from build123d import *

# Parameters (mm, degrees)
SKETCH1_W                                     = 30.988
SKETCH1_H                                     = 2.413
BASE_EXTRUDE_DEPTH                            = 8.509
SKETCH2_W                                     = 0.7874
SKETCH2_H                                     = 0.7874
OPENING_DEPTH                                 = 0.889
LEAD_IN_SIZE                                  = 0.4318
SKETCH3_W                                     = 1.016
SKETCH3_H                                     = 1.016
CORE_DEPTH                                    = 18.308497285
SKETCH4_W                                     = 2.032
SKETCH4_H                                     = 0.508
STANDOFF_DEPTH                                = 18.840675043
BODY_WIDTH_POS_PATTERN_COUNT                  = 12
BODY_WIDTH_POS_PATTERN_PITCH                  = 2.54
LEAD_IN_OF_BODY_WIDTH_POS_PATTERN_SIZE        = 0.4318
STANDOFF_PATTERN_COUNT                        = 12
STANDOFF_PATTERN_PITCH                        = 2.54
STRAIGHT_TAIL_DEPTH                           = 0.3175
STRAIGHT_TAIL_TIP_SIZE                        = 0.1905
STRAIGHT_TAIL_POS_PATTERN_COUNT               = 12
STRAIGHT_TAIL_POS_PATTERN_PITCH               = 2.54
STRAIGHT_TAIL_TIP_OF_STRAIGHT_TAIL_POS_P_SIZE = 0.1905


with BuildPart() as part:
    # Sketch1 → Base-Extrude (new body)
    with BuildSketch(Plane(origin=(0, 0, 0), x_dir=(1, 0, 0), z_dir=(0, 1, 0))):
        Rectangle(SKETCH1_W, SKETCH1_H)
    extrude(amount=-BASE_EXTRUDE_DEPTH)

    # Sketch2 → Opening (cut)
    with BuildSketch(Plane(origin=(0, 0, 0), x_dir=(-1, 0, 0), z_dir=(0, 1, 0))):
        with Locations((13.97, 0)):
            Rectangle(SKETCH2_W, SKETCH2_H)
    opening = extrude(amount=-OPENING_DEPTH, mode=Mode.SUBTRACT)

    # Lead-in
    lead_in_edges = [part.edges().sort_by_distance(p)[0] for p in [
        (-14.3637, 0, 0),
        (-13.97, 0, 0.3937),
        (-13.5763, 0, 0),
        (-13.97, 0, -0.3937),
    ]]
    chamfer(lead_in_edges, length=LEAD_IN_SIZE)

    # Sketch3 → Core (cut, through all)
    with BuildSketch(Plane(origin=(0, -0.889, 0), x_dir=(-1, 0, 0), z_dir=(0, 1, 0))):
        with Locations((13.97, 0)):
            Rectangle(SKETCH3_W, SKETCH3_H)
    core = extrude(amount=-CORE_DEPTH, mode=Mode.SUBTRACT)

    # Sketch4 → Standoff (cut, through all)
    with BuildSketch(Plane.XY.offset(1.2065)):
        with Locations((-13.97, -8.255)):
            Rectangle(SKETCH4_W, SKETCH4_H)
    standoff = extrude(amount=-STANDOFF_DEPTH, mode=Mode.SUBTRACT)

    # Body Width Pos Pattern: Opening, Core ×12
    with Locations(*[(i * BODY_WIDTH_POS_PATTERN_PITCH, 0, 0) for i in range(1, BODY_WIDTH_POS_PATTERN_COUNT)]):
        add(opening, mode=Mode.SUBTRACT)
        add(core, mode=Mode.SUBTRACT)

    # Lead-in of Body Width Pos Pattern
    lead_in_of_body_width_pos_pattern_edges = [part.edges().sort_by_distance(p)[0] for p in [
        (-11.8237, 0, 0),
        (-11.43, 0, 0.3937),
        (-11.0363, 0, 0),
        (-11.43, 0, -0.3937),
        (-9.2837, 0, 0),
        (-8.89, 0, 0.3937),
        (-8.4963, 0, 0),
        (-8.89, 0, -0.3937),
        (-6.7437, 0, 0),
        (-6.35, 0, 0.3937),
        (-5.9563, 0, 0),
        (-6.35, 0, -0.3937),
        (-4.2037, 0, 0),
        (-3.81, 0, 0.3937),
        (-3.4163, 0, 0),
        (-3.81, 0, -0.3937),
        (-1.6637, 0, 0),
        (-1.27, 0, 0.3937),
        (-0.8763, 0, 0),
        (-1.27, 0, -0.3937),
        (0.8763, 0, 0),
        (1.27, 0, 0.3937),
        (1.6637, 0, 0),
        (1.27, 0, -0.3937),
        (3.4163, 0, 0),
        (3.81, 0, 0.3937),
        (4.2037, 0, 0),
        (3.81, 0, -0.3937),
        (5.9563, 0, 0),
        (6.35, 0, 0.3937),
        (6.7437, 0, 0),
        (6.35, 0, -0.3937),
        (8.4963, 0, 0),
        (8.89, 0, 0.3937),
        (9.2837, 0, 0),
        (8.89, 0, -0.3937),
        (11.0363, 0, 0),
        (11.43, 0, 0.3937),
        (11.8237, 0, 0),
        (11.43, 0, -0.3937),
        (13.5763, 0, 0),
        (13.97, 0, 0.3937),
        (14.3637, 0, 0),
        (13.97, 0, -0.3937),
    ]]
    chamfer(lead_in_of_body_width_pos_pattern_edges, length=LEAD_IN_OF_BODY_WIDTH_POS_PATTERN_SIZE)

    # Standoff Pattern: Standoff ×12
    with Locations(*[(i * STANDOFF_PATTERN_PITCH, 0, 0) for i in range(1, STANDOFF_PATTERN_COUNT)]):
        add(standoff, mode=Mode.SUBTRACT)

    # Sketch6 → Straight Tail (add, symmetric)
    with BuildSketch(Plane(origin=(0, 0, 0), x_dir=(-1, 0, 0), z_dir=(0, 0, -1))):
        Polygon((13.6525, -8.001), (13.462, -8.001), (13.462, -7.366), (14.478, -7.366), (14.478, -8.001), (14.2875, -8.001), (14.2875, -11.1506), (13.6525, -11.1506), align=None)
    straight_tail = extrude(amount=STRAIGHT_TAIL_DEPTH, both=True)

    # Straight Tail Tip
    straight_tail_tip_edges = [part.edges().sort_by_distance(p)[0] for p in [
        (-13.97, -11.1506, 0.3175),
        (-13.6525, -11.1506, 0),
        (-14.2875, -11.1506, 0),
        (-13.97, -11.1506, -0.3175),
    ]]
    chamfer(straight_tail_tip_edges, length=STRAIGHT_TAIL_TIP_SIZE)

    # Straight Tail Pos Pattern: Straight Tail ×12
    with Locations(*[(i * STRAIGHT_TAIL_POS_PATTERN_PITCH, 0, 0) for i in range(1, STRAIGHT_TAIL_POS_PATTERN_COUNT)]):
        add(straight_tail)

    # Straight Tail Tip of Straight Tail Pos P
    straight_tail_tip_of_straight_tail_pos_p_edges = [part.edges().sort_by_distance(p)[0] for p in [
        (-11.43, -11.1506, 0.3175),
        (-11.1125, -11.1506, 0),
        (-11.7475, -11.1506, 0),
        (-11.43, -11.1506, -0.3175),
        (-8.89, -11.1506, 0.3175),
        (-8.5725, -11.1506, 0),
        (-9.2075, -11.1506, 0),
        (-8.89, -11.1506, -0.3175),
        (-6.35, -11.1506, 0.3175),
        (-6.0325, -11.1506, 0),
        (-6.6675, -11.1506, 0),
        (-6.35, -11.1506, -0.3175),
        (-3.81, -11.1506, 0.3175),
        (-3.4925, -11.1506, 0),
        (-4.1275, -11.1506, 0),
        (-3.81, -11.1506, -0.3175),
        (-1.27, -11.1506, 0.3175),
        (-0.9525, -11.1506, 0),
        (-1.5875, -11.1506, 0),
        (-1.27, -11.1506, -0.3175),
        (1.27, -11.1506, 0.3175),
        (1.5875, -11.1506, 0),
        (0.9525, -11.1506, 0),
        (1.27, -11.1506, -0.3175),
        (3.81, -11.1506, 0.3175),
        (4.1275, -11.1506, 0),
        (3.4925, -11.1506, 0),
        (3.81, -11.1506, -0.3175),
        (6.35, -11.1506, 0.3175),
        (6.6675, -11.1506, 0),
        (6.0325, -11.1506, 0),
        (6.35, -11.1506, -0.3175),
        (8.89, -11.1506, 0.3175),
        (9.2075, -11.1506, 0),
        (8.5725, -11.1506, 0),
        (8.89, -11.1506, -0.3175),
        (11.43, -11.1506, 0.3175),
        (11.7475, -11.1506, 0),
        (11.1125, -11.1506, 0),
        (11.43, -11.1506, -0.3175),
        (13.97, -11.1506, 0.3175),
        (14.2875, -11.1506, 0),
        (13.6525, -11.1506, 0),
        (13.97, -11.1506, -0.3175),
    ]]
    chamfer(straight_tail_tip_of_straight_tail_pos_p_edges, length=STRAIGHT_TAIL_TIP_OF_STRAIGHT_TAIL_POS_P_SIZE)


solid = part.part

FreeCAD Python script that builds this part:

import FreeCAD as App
import Part
import Sketcher

V = App.Vector
Q = App.Units.Quantity


def edges_at(feature, points):
    """Names of the edges that pass closest to the given points."""
    edges = feature.Shape.Edges
    near = lambda p: min(range(len(edges)), key=lambda i: edges[i].distToShape(Part.Vertex(*p))[0])
    return sorted({f"Edge{near(p) + 1}" for p in points})

doc = App.newDocument("Part")
body = doc.addObject("PartDesign::Body", "Body")

# Sketch on XZ plane
sketch1 = doc.addObject("Sketcher::SketchObject", "Sketch")
body.addObject(sketch1)
sketch1.AttachmentSupport = (doc.XZ_Plane, [""])
sketch1.MapMode = "FlatFace"
sketch1.addGeometry(Part.LineSegment(V(-15.5, -1.2, 0), V(-15.5, 1.2, 0)), False)
sketch1.addGeometry(Part.LineSegment(V(-15.5, 1.2, 0), V(15.5, 1.2, 0)), False)
sketch1.addGeometry(Part.LineSegment(V(15.5, 1.2, 0), V(15.5, -1.2, 0)), False)
sketch1.addGeometry(Part.LineSegment(V(15.5, -1.2, 0), V(-15.5, -1.2, 0)), False)
sketch1.addConstraint(Sketcher.Constraint("Coincident", 0, 2, 1, 1))
sketch1.addConstraint(Sketcher.Constraint("Coincident", 1, 2, 2, 1))
sketch1.addConstraint(Sketcher.Constraint("Coincident", 2, 2, 3, 1))
sketch1.addConstraint(Sketcher.Constraint("Coincident", 3, 2, 0, 1))
sketch1.addConstraint(Sketcher.Constraint("Vertical", 0))
sketch1.addConstraint(Sketcher.Constraint("Horizontal", 1))
sketch1.addConstraint(Sketcher.Constraint("Vertical", 2))
sketch1.addConstraint(Sketcher.Constraint("Horizontal", 3))
sketch1.addConstraint(Sketcher.Constraint("Symmetric", 0, 2, 2, 2, -1, 1))
sketch1.addConstraint(Sketcher.Constraint("DistanceX", 1, 1, 1, 2, Q("1.22 in")))
sketch1.addConstraint(Sketcher.Constraint("DistanceY", 0, 1, 0, 2, Q("0.095 in")))
pad1 = doc.addObject("PartDesign::Pad", "Pad")
body.addObject(pad1)
pad1.Profile = sketch1
pad1.Length = Q("0.335 in")

# Sketch on XZ plane
sketch2 = doc.addObject("Sketcher::SketchObject", "Sketch001")
body.addObject(sketch2)
sketch2.AttachmentSupport = (doc.XZ_Plane, [""])
sketch2.MapMode = "FlatFace"
sketch2.addGeometry(Part.LineSegment(V(-13.6, 0.4, 0), V(-13.6, -0.4, 0)), False)
sketch2.addGeometry(Part.LineSegment(V(-13.6, -0.4, 0), V(-14.4, -0.4, 0)), False)
sketch2.addGeometry(Part.LineSegment(V(-14.4, -0.4, 0), V(-14.4, 0.4, 0)), False)
sketch2.addGeometry(Part.LineSegment(V(-14.4, 0.4, 0), V(-13.6, 0.4, 0)), False)
sketch2.addConstraint(Sketcher.Constraint("Coincident", 0, 2, 1, 1))
sketch2.addConstraint(Sketcher.Constraint("Coincident", 1, 2, 2, 1))
sketch2.addConstraint(Sketcher.Constraint("Coincident", 2, 2, 3, 1))
sketch2.addConstraint(Sketcher.Constraint("Coincident", 3, 2, 0, 1))
sketch2.addConstraint(Sketcher.Constraint("Vertical", 0))
sketch2.addConstraint(Sketcher.Constraint("Horizontal", 1))
sketch2.addConstraint(Sketcher.Constraint("Vertical", 2))
sketch2.addConstraint(Sketcher.Constraint("Horizontal", 3))
sketch2.addConstraint(Sketcher.Constraint("Equal", 3, 0))
sketch2.addConstraint(Sketcher.Constraint("DistanceX", 1, 2, 1, 1, Q("0.031 in")))
sketch2.addConstraint(Sketcher.Constraint("DistanceX", 0, 2, -1, 1, Q("0.5345 in")))
sketch2.addConstraint(Sketcher.Constraint("DistanceY", 0, 2, -1, 1, Q("0.0155 in")))
pocket1 = doc.addObject("PartDesign::Pocket", "Pocket")
body.addObject(pocket1)
pocket1.Profile = sketch2
pocket1.Length = Q("0.035 in")
pocket1.Reversed = True
doc.recompute()

chamfer = doc.addObject("PartDesign::Chamfer", "Chamfer")
body.addObject(chamfer)
chamfer.Base = (pocket1, edges_at(pocket1, [
    (-14.364, 0, 0),
    (-13.97, 0, 0.394),
    (-13.576, 0, 0),
    (-13.97, 0, -0.394),
]))
chamfer.Size = Q("0.017 in")

# Sketch on XZ plane
sketch3 = doc.addObject("Sketcher::SketchObject", "Sketch002")
body.addObject(sketch3)
sketch3.AttachmentSupport = (doc.XZ_Plane, [""])
sketch3.MapMode = "FlatFace"
sketch3.AttachmentOffset = App.Placement(V(0, 0, 0.035 * 25.4), App.Rotation())
sketch3.addGeometry(Part.LineSegment(V(-13.5, 0.5, 0), V(-13.5, -0.5, 0)), False)
sketch3.addGeometry(Part.LineSegment(V(-13.5, -0.5, 0), V(-14.5, -0.5, 0)), False)
sketch3.addGeometry(Part.LineSegment(V(-14.5, -0.5, 0), V(-14.5, 0.5, 0)), False)
sketch3.addGeometry(Part.LineSegment(V(-14.5, 0.5, 0), V(-13.5, 0.5, 0)), False)
sketch3.addConstraint(Sketcher.Constraint("Coincident", 0, 2, 1, 1))
sketch3.addConstraint(Sketcher.Constraint("Coincident", 1, 2, 2, 1))
sketch3.addConstraint(Sketcher.Constraint("Coincident", 2, 2, 3, 1))
sketch3.addConstraint(Sketcher.Constraint("Coincident", 3, 2, 0, 1))
sketch3.addConstraint(Sketcher.Constraint("Vertical", 0))
sketch3.addConstraint(Sketcher.Constraint("Horizontal", 1))
sketch3.addConstraint(Sketcher.Constraint("Vertical", 2))
sketch3.addConstraint(Sketcher.Constraint("Horizontal", 3))
sketch3.addConstraint(Sketcher.Constraint("Equal", 3, 0))
sketch3.addConstraint(Sketcher.Constraint("DistanceX", 1, 2, 1, 1, Q("0.04 in")))
sketch3.addConstraint(Sketcher.Constraint("DistanceX", 0, 2, -1, 1, Q("0.53 in")))
sketch3.addConstraint(Sketcher.Constraint("DistanceY", 0, 2, -1, 1, Q("0.02 in")))
pocket2 = doc.addObject("PartDesign::Pocket", "Pocket001")
body.addObject(pocket2)
pocket2.Profile = sketch3
pocket2.Type = "ThroughAll"
pocket2.Reversed = True

# Sketch on XY plane
sketch4 = doc.addObject("Sketcher::SketchObject", "Sketch003")
body.addObject(sketch4)
sketch4.AttachmentSupport = (doc.XY_Plane, [""])
sketch4.MapMode = "FlatFace"
sketch4.AttachmentOffset = App.Placement(V(0, 0, 0.0475 * 25.4), App.Rotation())
sketch4.addGeometry(Part.LineSegment(V(-15, -8, 0), V(-15, -8.5, 0)), False)
sketch4.addGeometry(Part.LineSegment(V(-15, -8.5, 0), V(-13, -8.5, 0)), False)
sketch4.addGeometry(Part.LineSegment(V(-13, -8.5, 0), V(-13, -8, 0)), False)
sketch4.addGeometry(Part.LineSegment(V(-13, -8, 0), V(-15, -8, 0)), False)
sketch4.addConstraint(Sketcher.Constraint("Coincident", 0, 2, 1, 1))
sketch4.addConstraint(Sketcher.Constraint("Coincident", 1, 2, 2, 1))
sketch4.addConstraint(Sketcher.Constraint("Coincident", 2, 2, 3, 1))
sketch4.addConstraint(Sketcher.Constraint("Coincident", 3, 2, 0, 1))
sketch4.addConstraint(Sketcher.Constraint("Vertical", 0))
sketch4.addConstraint(Sketcher.Constraint("Horizontal", 1))
sketch4.addConstraint(Sketcher.Constraint("Vertical", 2))
sketch4.addConstraint(Sketcher.Constraint("Horizontal", 3))
sketch4.addConstraint(Sketcher.Constraint("DistanceX", 1, 1, 1, 2, Q("0.08 in")))
sketch4.addConstraint(Sketcher.Constraint("DistanceY", 0, 2, 0, 1, Q("0.02 in")))
sketch4.addConstraint(Sketcher.Constraint("DistanceX", 0, 2, -1, 1, Q("0.59 in")))
sketch4.addConstraint(Sketcher.Constraint("DistanceY", 0, 2, -1, 1, Q("0.335 in")))
pocket3 = doc.addObject("PartDesign::Pocket", "Pocket002")
body.addObject(pocket3)
pocket3.Profile = sketch4
pocket3.Type = "ThroughAll"
doc.recompute()

linearpattern = doc.addObject("PartDesign::LinearPattern", "LinearPattern")
body.addObject(linearpattern)
linearpattern.Originals = [pocket1, pocket2]
linearpattern.Direction = (doc.X_Axis, [""])
linearpattern.Mode = "offset"
linearpattern.Offset = Q("0.1 in")
linearpattern.Occurrences = 12
body.Tip = linearpattern
doc.recompute()

chamfer2 = doc.addObject("PartDesign::Chamfer", "Chamfer001")
body.addObject(chamfer2)
chamfer2.Base = (linearpattern, edges_at(linearpattern, [
    (-11.824, 0, 0),
    (-11.43, 0, 0.394),
    (-11.036, 0, 0),
    (-11.43, 0, -0.394),
    (-9.284, 0, 0),
    (-8.89, 0, 0.394),
    (-8.496, 0, 0),
    (-8.89, 0, -0.394),
    (-6.744, 0, 0),
    (-6.35, 0, 0.394),
    (-5.956, 0, 0),
    (-6.35, 0, -0.394),
    (-4.204, 0, 0),
    (-3.81, 0, 0.394),
    (-3.416, 0, 0),
    (-3.81, 0, -0.394),
    (-1.664, 0, 0),
    (-1.27, 0, 0.394),
    (-0.876, 0, 0),
    (-1.27, 0, -0.394),
    (0.876, 0, 0),
    (1.27, 0, 0.394),
    (1.664, 0, 0),
    (1.27, 0, -0.394),
    (3.416, 0, 0),
    (3.81, 0, 0.394),
    (4.204, 0, 0),
    (3.81, 0, -0.394),
    (5.956, 0, 0),
    (6.35, 0, 0.394),
    (6.744, 0, 0),
    (6.35, 0, -0.394),
    (8.496, 0, 0),
    (8.89, 0, 0.394),
    (9.284, 0, 0),
    (8.89, 0, -0.394),
    (11.036, 0, 0),
    (11.43, 0, 0.394),
    (11.824, 0, 0),
    (11.43, 0, -0.394),
    (13.576, 0, 0),
    (13.97, 0, 0.394),
    (14.364, 0, 0),
    (13.97, 0, -0.394),
]))
chamfer2.Size = Q("0.017 in")
doc.recompute()

linearpattern2 = doc.addObject("PartDesign::LinearPattern", "LinearPattern001")
body.addObject(linearpattern2)
linearpattern2.Originals = [pocket3]
linearpattern2.Direction = (doc.X_Axis, [""])
linearpattern2.Mode = "offset"
linearpattern2.Offset = Q("0.1 in")
linearpattern2.Occurrences = 12
body.Tip = linearpattern2

# Sketch on XY plane
sketch5 = doc.addObject("Sketcher::SketchObject", "Sketch004")
body.addObject(sketch5)
sketch5.AttachmentSupport = (doc.XY_Plane, [""])
sketch5.MapMode = "FlatFace"
sketch5.addGeometry(Part.LineSegment(V(-13.46, -8, 0), V(-13.65, -8, 0)), False)
sketch5.addGeometry(Part.LineSegment(V(-13.65, -8, 0), V(-13.65, -11.15, 0)), False)
sketch5.addGeometry(Part.LineSegment(V(-13.65, -11.15, 0), V(-14.29, -11.15, 0)), False)
sketch5.addGeometry(Part.LineSegment(V(-14.29, -11.15, 0), V(-14.29, -8, 0)), False)
sketch5.addGeometry(Part.LineSegment(V(-14.29, -8, 0), V(-14.48, -8, 0)), False)
sketch5.addGeometry(Part.LineSegment(V(-14.48, -8, 0), V(-14.48, -7.37, 0)), False)
sketch5.addGeometry(Part.LineSegment(V(-14.48, -7.37, 0), V(-13.46, -7.37, 0)), False)
sketch5.addGeometry(Part.LineSegment(V(-13.46, -7.37, 0), V(-13.46, -8, 0)), False)
sketch5.addConstraint(Sketcher.Constraint("Coincident", 0, 2, 1, 1))
sketch5.addConstraint(Sketcher.Constraint("Coincident", 1, 2, 2, 1))
sketch5.addConstraint(Sketcher.Constraint("Coincident", 2, 2, 3, 1))
sketch5.addConstraint(Sketcher.Constraint("Coincident", 3, 2, 4, 1))
sketch5.addConstraint(Sketcher.Constraint("Coincident", 4, 2, 5, 1))
sketch5.addConstraint(Sketcher.Constraint("Coincident", 5, 2, 6, 1))
sketch5.addConstraint(Sketcher.Constraint("Coincident", 6, 2, 7, 1))
sketch5.addConstraint(Sketcher.Constraint("Coincident", 7, 2, 0, 1))
sketch5.addConstraint(Sketcher.Constraint("Horizontal", 0))
sketch5.addConstraint(Sketcher.Constraint("Vertical", 1))
sketch5.addConstraint(Sketcher.Constraint("Horizontal", 2))
sketch5.addConstraint(Sketcher.Constraint("Vertical", 3))
sketch5.addConstraint(Sketcher.Constraint("Horizontal", 4))
sketch5.addConstraint(Sketcher.Constraint("Vertical", 5))
sketch5.addConstraint(Sketcher.Constraint("Horizontal", 6))
sketch5.addConstraint(Sketcher.Constraint("Vertical", 7))
sketch5.addConstraint(Sketcher.Constraint("Horizontal", 0, 2, 3, 2))
sketch5.addConstraint(Sketcher.Constraint("Equal", 0, 4))
sketch5.addConstraint(Sketcher.Constraint("Equal", 2, 5))
sketch5.addConstraint(Sketcher.Constraint("DistanceX", 6, 1, 6, 2, Q("0.04 in")))
sketch5.addConstraint(Sketcher.Constraint("DistanceX", 2, 2, 2, 1, Q("0.025 in")))
sketch5.addConstraint(Sketcher.Constraint("DistanceY", 1, 2, 1, 1, Q("0.124 in")))
sketch5.addConstraint(Sketcher.Constraint("DistanceX", 4, 2, -1, 1, Q("0.57 in")))
sketch5.addConstraint(Sketcher.Constraint("DistanceY", 5, 2, -1, 1, Q("0.29 in")))
pad2 = doc.addObject("PartDesign::Pad", "Pad001")
body.addObject(pad2)
pad2.Profile = sketch5
pad2.Length = Q("0.025 in")
pad2.Midplane = True
doc.recompute()

chamfer3 = doc.addObject("PartDesign::Chamfer", "Chamfer002")
body.addObject(chamfer3)
chamfer3.Base = (pad2, edges_at(pad2, [
    (-13.97, -11.151, 0.318),
    (-13.652, -11.151, 0),
    (-14.287, -11.151, 0),
    (-13.97, -11.151, -0.318),
]))
chamfer3.Size = Q("0.0075 in")
doc.recompute()

linearpattern3 = doc.addObject("PartDesign::LinearPattern", "LinearPattern002")
body.addObject(linearpattern3)
linearpattern3.Originals = [pad2]
linearpattern3.Direction = (doc.X_Axis, [""])
linearpattern3.Mode = "offset"
linearpattern3.Offset = Q("0.1 in")
linearpattern3.Occurrences = 12
body.Tip = linearpattern3
doc.recompute()

chamfer4 = doc.addObject("PartDesign::Chamfer", "Chamfer003")
body.addObject(chamfer4)
chamfer4.Base = (linearpattern3, edges_at(linearpattern3, [
    (-11.43, -11.151, 0.318),
    (-11.113, -11.151, 0),
    (-11.748, -11.151, 0),
    (-11.43, -11.151, -0.318),
    (-8.89, -11.151, 0.318),
    (-8.572, -11.151, 0),
    (-9.207, -11.151, 0),
    (-8.89, -11.151, -0.318),
    (-6.35, -11.151, 0.318),
    (-6.032, -11.151, 0),
    (-6.668, -11.151, 0),
    (-6.35, -11.151, -0.318),
    (-3.81, -11.151, 0.318),
    (-3.493, -11.151, 0),
    (-4.128, -11.151, 0),
    (-3.81, -11.151, -0.318),
    (-1.27, -11.151, 0.318),
    (-0.953, -11.151, 0),
    (-1.587, -11.151, 0),
    (-1.27, -11.151, -0.318),
    (1.27, -11.151, 0.318),
    (1.587, -11.151, 0),
    (0.953, -11.151, 0),
    (1.27, -11.151, -0.318),
    (3.81, -11.151, 0.318),
    (4.128, -11.151, 0),
    (3.493, -11.151, 0),
    (3.81, -11.151, -0.318),
    (6.35, -11.151, 0.318),
    (6.668, -11.151, 0),
    (6.032, -11.151, 0),
    (6.35, -11.151, -0.318),
    (8.89, -11.151, 0.318),
    (9.207, -11.151, 0),
    (8.572, -11.151, 0),
    (8.89, -11.151, -0.318),
    (11.43, -11.151, 0.318),
    (11.748, -11.151, 0),
    (11.113, -11.151, 0),
    (11.43, -11.151, -0.318),
    (13.97, -11.151, 0.318),
    (14.287, -11.151, 0),
    (13.652, -11.151, 0),
    (13.97, -11.151, -0.318),
]))
chamfer4.Size = Q("0.0075 in")

doc.recompute()
